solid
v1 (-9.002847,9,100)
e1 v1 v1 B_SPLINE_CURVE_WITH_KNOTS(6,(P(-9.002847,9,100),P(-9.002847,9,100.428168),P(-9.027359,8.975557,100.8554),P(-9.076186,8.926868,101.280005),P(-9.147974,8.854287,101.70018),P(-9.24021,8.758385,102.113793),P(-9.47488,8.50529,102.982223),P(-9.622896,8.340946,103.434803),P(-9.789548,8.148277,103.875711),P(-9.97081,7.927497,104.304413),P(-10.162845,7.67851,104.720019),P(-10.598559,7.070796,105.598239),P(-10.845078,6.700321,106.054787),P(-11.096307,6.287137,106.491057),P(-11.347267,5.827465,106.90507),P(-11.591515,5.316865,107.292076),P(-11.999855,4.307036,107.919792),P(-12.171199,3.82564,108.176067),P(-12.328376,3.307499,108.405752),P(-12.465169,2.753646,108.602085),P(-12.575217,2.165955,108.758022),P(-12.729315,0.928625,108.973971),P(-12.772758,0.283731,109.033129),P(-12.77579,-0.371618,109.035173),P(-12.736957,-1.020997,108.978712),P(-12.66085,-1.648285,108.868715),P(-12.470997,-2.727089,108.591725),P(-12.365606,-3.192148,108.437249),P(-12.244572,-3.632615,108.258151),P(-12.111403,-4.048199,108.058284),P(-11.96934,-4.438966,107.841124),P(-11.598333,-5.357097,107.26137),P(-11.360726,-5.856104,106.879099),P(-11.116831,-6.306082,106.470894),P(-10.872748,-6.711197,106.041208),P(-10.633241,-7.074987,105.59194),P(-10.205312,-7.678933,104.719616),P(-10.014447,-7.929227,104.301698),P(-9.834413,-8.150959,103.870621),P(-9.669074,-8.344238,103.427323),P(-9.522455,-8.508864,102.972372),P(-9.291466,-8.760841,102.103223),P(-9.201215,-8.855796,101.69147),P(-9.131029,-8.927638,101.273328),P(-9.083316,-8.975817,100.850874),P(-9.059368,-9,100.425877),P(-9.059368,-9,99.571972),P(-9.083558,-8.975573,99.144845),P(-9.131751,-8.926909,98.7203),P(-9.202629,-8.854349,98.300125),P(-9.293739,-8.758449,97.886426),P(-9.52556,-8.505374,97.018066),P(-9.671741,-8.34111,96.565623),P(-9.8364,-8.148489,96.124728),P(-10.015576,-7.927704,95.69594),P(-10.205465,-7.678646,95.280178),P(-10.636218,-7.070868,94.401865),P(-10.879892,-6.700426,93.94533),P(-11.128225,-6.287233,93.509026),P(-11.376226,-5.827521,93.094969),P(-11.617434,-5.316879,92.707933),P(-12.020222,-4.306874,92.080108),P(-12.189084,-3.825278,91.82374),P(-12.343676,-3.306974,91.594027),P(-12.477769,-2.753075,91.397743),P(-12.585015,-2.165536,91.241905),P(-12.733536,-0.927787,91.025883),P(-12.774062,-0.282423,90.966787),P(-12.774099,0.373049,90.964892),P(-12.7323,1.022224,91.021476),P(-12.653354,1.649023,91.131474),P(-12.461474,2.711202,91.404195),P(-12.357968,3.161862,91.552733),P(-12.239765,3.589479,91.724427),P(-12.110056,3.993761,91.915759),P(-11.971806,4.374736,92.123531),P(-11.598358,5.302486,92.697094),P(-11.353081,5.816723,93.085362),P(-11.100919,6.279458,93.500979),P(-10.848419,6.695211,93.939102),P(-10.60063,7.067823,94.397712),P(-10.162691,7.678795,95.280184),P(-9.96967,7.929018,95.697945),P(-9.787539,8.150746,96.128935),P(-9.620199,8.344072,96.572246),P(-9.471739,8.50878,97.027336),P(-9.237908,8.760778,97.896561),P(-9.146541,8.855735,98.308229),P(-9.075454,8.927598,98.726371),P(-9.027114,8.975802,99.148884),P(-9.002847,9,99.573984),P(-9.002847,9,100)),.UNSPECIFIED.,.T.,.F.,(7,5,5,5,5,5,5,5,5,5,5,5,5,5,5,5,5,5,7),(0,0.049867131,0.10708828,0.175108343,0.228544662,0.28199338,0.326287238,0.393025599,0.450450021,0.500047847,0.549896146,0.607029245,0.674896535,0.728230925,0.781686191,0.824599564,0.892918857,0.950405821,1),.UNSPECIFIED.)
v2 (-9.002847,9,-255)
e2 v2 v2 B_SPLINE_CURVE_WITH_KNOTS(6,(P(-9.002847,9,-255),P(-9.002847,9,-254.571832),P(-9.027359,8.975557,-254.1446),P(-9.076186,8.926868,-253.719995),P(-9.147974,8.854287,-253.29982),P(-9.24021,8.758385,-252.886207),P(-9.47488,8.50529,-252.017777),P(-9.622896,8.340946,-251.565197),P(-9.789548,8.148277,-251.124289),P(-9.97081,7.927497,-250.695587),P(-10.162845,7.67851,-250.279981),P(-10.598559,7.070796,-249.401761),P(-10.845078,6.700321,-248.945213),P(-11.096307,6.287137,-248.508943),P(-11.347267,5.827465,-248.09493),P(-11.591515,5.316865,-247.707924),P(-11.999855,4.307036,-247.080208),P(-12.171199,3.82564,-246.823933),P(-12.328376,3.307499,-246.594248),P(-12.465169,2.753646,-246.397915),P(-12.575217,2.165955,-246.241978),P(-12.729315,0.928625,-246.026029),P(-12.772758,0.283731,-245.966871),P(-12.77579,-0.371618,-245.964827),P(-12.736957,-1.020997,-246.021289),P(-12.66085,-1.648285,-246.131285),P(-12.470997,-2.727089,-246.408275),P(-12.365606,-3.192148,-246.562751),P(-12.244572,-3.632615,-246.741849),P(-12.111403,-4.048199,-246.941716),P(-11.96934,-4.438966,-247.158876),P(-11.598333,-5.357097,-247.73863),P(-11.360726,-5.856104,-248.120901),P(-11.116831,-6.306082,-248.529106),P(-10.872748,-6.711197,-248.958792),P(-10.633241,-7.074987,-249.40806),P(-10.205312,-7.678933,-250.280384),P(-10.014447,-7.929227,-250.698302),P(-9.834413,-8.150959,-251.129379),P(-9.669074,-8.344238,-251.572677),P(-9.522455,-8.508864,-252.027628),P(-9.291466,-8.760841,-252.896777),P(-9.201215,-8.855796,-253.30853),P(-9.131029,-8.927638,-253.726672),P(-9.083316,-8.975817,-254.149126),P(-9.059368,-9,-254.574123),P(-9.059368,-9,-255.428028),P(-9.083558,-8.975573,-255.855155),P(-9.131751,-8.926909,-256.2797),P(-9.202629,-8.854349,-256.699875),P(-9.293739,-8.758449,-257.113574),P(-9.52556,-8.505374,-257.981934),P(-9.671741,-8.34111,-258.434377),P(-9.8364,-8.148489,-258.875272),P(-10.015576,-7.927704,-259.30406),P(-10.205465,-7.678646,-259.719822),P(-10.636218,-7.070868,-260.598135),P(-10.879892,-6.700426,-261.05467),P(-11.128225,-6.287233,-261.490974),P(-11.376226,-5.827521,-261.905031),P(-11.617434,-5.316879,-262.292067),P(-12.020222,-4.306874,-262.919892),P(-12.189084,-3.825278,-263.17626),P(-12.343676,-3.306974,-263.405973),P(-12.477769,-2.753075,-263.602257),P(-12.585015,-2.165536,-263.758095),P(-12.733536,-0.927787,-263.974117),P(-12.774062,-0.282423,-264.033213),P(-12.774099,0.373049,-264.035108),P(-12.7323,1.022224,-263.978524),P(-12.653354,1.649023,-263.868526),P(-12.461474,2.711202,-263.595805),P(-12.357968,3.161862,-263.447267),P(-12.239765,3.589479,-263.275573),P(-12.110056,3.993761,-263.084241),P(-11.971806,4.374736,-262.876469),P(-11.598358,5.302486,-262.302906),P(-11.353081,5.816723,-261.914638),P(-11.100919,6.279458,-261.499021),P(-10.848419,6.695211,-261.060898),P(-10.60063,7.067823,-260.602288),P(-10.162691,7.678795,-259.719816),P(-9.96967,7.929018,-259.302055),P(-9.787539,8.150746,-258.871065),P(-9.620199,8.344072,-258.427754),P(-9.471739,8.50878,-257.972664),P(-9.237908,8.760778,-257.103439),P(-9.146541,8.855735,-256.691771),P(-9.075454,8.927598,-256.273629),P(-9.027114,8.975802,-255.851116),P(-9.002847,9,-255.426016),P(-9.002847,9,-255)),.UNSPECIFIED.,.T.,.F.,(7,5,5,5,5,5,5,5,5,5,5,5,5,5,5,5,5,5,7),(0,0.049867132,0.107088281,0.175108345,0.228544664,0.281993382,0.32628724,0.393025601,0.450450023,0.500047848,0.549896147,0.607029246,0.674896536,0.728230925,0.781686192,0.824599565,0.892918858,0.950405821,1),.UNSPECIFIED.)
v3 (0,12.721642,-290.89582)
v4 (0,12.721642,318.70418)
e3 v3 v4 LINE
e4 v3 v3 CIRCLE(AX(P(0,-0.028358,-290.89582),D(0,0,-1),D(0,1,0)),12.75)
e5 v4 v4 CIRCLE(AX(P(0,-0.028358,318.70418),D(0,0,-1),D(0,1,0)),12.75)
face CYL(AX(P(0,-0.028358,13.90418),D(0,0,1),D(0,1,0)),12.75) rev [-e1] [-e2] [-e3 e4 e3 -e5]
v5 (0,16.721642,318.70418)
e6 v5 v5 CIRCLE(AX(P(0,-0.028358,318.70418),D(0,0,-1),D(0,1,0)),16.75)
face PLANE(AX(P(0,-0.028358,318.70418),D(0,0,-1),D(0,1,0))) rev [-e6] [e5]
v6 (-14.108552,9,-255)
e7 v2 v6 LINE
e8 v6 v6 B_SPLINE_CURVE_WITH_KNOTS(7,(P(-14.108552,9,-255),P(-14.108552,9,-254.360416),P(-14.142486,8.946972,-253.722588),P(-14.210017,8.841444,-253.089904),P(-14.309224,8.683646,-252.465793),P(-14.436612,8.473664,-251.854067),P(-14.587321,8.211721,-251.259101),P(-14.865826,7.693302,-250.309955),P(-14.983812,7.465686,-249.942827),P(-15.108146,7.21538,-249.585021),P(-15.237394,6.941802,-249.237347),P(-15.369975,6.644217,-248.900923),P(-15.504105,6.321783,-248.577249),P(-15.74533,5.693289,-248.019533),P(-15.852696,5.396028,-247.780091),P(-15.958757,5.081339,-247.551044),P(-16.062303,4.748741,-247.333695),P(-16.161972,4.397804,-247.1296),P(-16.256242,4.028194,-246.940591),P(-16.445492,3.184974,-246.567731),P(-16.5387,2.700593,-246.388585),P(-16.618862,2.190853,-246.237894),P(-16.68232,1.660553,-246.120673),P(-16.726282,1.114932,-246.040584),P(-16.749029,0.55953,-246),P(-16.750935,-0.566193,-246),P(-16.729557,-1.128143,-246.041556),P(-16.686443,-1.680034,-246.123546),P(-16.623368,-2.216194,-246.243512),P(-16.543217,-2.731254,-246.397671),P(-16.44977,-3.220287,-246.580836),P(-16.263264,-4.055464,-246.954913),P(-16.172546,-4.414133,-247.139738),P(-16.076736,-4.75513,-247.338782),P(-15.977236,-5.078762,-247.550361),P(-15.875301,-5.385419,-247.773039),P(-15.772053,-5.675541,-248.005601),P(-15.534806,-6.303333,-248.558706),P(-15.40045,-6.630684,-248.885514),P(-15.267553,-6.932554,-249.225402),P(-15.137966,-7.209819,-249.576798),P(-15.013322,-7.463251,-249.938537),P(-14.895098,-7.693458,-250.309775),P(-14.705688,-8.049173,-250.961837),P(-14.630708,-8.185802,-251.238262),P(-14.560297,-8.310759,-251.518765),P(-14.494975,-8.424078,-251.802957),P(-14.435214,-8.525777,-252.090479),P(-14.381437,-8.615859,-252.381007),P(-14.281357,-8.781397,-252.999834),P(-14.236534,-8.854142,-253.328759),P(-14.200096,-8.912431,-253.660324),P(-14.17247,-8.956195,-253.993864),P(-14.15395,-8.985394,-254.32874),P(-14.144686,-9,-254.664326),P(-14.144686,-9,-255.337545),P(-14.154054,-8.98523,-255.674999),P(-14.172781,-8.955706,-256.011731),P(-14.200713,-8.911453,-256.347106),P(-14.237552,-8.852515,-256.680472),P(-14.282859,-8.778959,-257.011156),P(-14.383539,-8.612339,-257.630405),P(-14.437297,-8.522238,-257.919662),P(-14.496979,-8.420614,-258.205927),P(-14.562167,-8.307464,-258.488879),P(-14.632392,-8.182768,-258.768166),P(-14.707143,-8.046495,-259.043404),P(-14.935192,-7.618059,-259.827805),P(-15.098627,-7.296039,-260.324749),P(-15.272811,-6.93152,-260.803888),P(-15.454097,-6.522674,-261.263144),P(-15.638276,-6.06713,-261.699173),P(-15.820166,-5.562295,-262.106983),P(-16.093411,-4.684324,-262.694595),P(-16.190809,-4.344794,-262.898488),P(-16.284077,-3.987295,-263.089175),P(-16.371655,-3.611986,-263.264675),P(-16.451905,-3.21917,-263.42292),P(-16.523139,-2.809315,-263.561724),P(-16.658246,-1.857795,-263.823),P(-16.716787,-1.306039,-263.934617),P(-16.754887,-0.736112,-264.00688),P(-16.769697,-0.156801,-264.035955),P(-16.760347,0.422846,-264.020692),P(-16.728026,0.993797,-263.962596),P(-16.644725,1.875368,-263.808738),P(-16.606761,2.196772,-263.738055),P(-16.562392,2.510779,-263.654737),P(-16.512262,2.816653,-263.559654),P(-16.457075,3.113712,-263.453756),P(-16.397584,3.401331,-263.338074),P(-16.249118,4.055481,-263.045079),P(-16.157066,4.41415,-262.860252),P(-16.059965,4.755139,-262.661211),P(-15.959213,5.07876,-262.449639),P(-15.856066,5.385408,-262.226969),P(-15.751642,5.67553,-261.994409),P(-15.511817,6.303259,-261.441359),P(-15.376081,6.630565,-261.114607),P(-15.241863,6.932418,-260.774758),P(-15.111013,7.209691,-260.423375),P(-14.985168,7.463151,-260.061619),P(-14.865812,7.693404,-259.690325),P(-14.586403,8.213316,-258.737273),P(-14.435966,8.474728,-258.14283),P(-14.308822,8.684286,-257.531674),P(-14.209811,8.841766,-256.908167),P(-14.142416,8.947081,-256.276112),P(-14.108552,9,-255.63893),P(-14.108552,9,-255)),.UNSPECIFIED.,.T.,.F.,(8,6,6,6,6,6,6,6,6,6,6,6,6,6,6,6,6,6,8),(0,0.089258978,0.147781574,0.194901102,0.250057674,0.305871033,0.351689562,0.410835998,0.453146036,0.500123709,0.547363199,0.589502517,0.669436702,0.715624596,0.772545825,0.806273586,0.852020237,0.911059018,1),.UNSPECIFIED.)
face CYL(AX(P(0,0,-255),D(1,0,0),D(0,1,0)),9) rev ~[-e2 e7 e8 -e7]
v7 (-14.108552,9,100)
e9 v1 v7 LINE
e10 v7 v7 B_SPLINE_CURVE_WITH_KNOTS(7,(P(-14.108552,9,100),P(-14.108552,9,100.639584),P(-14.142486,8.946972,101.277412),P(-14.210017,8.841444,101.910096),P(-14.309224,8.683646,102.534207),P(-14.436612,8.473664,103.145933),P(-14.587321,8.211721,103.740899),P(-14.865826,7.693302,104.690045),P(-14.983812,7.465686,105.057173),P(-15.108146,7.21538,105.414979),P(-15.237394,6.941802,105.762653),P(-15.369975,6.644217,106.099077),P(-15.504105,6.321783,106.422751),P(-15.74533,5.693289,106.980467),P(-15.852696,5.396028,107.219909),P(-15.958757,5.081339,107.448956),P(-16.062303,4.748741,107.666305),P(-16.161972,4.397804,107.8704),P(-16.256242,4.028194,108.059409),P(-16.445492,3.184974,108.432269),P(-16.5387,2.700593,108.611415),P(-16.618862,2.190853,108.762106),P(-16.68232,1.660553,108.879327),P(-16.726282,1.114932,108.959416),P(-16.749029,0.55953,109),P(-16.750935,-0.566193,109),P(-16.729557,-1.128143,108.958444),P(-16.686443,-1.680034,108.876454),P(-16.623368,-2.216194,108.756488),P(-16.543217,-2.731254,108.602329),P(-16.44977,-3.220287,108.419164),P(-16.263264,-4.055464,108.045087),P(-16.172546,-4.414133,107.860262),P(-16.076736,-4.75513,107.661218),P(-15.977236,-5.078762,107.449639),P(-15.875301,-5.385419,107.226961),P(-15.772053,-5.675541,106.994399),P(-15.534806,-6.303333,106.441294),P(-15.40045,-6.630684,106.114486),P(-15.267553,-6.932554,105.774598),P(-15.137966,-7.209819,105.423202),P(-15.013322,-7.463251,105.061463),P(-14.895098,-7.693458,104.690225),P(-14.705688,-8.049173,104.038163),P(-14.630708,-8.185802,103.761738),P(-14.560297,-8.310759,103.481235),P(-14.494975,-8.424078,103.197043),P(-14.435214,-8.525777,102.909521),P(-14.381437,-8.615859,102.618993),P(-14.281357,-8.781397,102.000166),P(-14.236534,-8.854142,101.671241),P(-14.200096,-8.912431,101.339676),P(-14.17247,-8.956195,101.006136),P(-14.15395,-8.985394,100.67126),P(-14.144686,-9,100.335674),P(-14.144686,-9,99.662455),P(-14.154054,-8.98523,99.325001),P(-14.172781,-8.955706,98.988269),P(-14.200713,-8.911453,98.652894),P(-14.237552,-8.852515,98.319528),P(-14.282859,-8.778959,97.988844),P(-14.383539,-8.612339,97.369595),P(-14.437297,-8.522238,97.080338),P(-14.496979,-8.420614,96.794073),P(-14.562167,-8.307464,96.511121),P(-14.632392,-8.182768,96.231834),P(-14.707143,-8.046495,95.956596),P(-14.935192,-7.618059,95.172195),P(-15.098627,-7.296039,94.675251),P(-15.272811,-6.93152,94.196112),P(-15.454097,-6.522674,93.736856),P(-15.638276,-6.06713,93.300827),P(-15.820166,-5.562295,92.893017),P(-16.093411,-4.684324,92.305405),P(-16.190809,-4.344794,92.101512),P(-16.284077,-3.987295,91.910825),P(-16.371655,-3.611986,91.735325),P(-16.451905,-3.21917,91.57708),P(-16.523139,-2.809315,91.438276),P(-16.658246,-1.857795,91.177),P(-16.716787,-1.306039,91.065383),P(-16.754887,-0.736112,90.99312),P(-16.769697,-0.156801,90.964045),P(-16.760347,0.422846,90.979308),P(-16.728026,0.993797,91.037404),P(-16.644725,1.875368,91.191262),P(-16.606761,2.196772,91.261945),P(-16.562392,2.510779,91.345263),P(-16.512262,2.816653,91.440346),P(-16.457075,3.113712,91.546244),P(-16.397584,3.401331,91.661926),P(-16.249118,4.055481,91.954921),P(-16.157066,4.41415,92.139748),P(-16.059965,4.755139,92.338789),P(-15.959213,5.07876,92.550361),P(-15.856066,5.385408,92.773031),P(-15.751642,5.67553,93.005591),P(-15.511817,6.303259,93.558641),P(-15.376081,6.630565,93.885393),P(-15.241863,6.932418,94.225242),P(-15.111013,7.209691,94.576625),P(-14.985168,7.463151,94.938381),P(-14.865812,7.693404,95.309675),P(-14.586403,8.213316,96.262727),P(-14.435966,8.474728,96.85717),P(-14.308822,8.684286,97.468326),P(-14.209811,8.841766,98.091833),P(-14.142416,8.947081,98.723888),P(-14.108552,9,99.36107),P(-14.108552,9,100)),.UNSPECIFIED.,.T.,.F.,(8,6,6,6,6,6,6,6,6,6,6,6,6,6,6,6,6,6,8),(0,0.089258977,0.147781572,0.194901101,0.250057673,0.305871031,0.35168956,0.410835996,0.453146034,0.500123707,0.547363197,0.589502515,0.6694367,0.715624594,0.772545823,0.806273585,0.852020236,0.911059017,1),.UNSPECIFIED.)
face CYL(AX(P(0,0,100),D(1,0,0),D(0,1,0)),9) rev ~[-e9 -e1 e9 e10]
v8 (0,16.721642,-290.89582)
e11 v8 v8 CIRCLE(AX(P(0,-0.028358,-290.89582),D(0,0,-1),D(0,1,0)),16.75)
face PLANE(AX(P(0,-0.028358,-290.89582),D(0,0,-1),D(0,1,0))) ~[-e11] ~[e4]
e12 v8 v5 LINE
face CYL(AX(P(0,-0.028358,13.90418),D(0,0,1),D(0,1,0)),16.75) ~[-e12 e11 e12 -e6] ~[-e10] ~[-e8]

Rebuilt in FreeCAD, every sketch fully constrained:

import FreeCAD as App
import Part
import Sketcher

doc = App.newDocument("Part")
params = doc.addObject("Spreadsheet::Sheet", "Params")
for row, (alias, value) in enumerate([
    ("sketch1_width", "4 mm"),
    ("sketch1_height", "609.6 mm"),
    ("revolution_angle", "360 deg"),
    ("sketch2_diameter", "18 mm"),
], start=1):
    params.set(f"A{row}", alias)
    params.set(f"B{row}", "=" + value)
    params.setAlias(f"B{row}", alias)

body = doc.addObject("PartDesign::Body", "Body")

sketch1 = body.newObject("Sketcher::SketchObject", "Sketch")
sketch1.AttachmentSupport = (doc.getObject("YZ_Plane"), [""])
sketch1.MapMode = "FlatFace"
sketch1.addGeometry(Part.LineSegment(App.Vector(12.7, 318.7, 0), App.Vector(12.7, -290.9, 0)), False)
sketch1.addGeometry(Part.LineSegment(App.Vector(12.7, -290.9, 0), App.Vector(16.7, -290.9, 0)), False)
sketch1.addGeometry(Part.LineSegment(App.Vector(16.7, -290.9, 0), App.Vector(16.7, 318.7, 0)), False)
sketch1.addGeometry(Part.LineSegment(App.Vector(16.7, 318.7, 0), App.Vector(12.7, 318.7, 0)), False)
sketch1.addGeometry(Part.LineSegment(App.Vector(0, 318.7, 0), App.Vector(0, -290.9, 0)), True)
sketch1.addConstraint(Sketcher.Constraint("Coincident", 0, 2, 1, 1))
sketch1.addConstraint(Sketcher.Constraint("Coincident", 1, 2, 2, 1))
sketch1.addConstraint(Sketcher.Constraint("Coincident", 2, 2, 3, 1))
sketch1.addConstraint(Sketcher.Constraint("Coincident", 3, 2, 0, 1))
sketch1.addConstraint(Sketcher.Constraint("Vertical", 0))
sketch1.addConstraint(Sketcher.Constraint("Horizontal", 1))
sketch1.addConstraint(Sketcher.Constraint("Vertical", 2))
sketch1.addConstraint(Sketcher.Constraint("Horizontal", 3))
sketch1.addConstraint(Sketcher.Constraint("Vertical", 4))
sketch1.addConstraint(Sketcher.Constraint("Horizontal", 3, 2, 4, 1))
sketch1.addConstraint(Sketcher.Constraint("Horizontal", 1, 2, 4, 2))
sketch1.addConstraint(Sketcher.Constraint("DistanceX", 1, 1, 1, 2, 4.0))
sketch1.addConstraint(Sketcher.Constraint("DistanceY", 0, 2, 0, 1, 609.6))
sketch1.addConstraint(Sketcher.Constraint("DistanceX", 4, 1, 3, 2, 12.75))
sketch1.addConstraint(Sketcher.Constraint("DistanceX", -1, 1, 0, 2, 12.721642))
sketch1.addConstraint(Sketcher.Constraint("DistanceY", 0, 2, -1, 1, 290.89582))
sketch1.setExpression("Constraints[11]", "Params.sketch1_width")
sketch1.setExpression("Constraints[12]", "Params.sketch1_height")
revolution = body.newObject("PartDesign::Revolution", "Revolution")
revolution.Profile = sketch1
revolution.ReferenceAxis = (sketch1, ["Axis0"])
revolution.setExpression("Angle", "Params.revolution_angle")

sketch2 = body.newObject("Sketcher::SketchObject", "Sketch001")
sketch2.AttachmentSupport = (doc.getObject("YZ_Plane"), [""])
sketch2.MapMode = "FlatFace"
sketch2.addGeometry(Part.Circle(App.Vector(0, 100, 0), App.Vector(0, 0, 1), 9), False)
sketch2.addGeometry(Part.Circle(App.Vector(0, -255, 0), App.Vector(0, 0, 1), 9), False)
sketch2.addConstraint(Sketcher.Constraint("Equal", 0, 1))
sketch2.addConstraint(Sketcher.Constraint("PointOnObject", 0, 3, -2))
sketch2.addConstraint(Sketcher.Constraint("PointOnObject", 1, 3, -2))
sketch2.addConstraint(Sketcher.Constraint("Diameter", 0, 18.0))
sketch2.addConstraint(Sketcher.Constraint("DistanceY", -1, 1, 0, 3, 100.0))
sketch2.addConstraint(Sketcher.Constraint("DistanceY", 1, 3, -1, 1, 255.0))
sketch2.setExpression("Constraints[3]", "Params.sketch2_diameter")
pocket1 = body.newObject("PartDesign::Pocket", "Pocket")
pocket1.Profile = sketch2
pocket1.Type = "ThroughAll"

doc.recompute()
